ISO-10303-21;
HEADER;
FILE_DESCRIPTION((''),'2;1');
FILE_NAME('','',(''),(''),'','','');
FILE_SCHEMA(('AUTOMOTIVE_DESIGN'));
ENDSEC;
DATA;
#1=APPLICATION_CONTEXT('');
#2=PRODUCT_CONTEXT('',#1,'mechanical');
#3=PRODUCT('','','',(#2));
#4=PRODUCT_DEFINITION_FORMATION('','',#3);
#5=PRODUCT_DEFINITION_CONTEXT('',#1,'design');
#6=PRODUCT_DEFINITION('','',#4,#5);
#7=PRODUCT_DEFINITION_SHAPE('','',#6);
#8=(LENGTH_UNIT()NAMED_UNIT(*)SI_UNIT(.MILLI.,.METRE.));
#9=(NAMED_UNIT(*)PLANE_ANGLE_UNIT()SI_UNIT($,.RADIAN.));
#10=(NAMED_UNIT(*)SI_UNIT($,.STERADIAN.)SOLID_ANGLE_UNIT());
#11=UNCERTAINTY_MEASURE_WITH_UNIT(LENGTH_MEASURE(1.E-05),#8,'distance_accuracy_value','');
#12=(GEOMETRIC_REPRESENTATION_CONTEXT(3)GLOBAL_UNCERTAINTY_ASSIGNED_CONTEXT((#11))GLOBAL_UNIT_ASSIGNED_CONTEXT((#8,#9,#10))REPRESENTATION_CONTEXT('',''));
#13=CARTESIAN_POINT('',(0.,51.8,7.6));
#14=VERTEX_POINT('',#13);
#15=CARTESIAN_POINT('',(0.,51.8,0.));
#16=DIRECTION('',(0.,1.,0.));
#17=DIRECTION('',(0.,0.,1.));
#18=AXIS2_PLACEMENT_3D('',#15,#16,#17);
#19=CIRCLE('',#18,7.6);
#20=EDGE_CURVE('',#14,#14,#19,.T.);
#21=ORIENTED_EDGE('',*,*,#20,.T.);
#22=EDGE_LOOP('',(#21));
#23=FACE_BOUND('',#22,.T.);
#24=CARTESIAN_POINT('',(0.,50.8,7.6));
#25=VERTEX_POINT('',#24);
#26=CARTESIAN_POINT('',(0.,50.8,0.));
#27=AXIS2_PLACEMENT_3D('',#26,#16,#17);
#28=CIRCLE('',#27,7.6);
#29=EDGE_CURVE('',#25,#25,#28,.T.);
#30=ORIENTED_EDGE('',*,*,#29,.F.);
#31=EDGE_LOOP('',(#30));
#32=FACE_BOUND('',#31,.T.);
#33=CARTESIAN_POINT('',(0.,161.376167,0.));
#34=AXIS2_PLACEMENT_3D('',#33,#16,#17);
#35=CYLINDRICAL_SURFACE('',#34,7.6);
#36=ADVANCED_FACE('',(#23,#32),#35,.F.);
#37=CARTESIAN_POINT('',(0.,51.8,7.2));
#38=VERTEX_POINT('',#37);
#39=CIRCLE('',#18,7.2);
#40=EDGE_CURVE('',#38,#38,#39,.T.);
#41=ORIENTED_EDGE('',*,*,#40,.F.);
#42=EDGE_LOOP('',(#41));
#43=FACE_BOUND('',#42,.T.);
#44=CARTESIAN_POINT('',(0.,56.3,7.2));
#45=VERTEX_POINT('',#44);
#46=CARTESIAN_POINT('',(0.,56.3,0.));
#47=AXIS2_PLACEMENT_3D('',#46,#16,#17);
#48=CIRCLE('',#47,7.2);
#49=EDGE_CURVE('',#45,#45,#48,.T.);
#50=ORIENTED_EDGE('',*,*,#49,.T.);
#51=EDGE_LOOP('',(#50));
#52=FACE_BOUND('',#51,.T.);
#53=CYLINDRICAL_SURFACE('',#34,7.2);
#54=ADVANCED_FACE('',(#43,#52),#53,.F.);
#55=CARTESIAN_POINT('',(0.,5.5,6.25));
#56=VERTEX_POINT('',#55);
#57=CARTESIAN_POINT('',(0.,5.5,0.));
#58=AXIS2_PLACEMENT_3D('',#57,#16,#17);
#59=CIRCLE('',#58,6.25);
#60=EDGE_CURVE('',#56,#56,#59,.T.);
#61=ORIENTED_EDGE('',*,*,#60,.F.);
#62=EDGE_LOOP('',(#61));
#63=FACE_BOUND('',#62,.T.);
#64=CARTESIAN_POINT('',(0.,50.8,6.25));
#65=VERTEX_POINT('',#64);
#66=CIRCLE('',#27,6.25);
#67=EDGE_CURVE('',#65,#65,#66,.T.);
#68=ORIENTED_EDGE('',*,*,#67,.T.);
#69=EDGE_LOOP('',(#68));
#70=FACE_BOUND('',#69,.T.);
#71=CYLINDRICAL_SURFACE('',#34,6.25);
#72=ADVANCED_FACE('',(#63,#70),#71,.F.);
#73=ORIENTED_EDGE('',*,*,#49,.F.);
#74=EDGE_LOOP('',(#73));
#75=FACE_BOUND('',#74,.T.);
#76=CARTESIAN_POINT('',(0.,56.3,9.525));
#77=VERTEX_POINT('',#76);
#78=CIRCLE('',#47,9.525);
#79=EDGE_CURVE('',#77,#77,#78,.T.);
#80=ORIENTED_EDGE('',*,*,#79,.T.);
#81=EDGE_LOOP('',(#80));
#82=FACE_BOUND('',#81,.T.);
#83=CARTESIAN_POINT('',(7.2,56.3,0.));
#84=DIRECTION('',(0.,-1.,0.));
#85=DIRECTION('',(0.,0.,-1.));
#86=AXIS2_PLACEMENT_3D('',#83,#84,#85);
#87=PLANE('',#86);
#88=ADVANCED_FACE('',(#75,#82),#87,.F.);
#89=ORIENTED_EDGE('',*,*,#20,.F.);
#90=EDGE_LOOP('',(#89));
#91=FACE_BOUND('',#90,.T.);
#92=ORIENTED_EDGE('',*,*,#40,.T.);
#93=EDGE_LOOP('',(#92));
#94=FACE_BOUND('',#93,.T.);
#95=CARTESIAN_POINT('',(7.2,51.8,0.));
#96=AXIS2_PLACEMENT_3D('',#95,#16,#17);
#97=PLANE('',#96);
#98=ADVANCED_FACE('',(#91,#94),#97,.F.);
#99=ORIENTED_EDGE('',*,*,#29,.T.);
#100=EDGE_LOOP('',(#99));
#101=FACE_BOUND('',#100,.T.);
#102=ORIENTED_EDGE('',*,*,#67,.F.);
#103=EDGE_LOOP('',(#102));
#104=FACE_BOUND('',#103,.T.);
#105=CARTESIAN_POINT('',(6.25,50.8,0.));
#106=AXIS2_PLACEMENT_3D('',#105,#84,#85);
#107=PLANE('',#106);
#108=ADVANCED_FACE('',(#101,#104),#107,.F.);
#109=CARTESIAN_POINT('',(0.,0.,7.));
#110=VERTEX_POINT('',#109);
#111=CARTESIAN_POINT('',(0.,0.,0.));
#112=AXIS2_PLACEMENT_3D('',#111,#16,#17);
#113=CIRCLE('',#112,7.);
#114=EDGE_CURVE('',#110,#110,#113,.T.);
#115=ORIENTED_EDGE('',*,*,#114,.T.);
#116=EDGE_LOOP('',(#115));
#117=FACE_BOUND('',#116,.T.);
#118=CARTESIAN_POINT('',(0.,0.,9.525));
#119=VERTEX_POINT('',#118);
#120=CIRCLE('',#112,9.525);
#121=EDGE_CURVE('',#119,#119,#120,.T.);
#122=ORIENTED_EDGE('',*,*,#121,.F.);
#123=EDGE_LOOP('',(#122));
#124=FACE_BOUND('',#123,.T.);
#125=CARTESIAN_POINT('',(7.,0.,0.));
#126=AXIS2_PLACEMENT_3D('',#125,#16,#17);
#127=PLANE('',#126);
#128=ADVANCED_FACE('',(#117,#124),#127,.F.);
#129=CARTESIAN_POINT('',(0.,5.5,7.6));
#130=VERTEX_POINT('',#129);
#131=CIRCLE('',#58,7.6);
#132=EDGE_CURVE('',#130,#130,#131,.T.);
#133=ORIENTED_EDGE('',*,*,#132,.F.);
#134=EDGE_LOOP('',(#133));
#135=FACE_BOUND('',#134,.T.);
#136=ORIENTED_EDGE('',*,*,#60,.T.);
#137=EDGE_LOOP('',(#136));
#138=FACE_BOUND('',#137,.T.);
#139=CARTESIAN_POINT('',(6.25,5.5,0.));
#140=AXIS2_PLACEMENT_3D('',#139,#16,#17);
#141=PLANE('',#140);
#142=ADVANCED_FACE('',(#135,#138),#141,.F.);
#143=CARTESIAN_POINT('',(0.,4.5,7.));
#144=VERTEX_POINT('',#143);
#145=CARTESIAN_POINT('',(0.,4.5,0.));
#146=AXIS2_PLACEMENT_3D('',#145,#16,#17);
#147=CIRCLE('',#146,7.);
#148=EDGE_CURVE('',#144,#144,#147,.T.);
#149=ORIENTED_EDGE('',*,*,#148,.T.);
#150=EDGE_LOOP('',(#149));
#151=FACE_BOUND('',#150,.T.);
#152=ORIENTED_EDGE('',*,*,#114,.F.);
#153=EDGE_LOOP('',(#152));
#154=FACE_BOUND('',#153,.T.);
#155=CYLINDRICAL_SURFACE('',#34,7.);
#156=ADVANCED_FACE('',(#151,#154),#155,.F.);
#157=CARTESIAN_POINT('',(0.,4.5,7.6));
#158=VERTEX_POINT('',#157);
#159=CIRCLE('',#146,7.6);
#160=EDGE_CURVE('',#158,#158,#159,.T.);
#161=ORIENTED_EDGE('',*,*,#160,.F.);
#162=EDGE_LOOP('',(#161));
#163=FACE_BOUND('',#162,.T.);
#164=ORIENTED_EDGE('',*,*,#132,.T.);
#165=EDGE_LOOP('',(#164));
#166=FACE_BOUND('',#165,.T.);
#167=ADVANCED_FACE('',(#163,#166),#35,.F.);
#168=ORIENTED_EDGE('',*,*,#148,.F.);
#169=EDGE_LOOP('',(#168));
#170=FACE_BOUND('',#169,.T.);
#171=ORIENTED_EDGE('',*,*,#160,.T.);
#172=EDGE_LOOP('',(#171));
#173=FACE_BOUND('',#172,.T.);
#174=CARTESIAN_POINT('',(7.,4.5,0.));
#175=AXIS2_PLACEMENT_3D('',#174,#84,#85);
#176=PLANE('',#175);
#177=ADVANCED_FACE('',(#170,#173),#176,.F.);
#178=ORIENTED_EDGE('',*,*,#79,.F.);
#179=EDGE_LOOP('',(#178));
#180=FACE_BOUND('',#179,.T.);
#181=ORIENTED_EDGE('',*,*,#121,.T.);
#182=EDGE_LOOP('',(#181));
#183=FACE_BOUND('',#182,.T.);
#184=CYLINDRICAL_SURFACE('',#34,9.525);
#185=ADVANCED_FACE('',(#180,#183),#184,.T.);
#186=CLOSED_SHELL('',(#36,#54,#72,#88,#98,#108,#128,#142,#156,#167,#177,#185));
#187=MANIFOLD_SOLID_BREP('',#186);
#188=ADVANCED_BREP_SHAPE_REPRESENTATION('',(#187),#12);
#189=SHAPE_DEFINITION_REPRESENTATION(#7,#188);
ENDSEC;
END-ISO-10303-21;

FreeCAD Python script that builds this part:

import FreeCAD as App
import Part
import Sketcher


def add_polygon(sketch, points):
    """Adds a closed chain of lines whose ends are joined by coincident constraints."""
    first, n = sketch.GeometryCount, len(points)
    for a, b in zip(points, points[1:] + points[:1]):
        sketch.addGeometry(Part.LineSegment(App.Vector(*a, 0), App.Vector(*b, 0)), False)
    for i in range(n):
        sketch.addConstraint(Sketcher.Constraint("Coincident", first + i, 2, first + (i + 1) % n, 1))

doc = App.newDocument("Part")
body = doc.addObject("PartDesign::Body", "Body")

sketch1 = body.newObject("Sketcher::SketchObject", "Sketch")
sketch1.AttachmentSupport = (doc.getObject("XY_Plane"), [""])
sketch1.MapMode = "FlatFace"
add_polygon(sketch1, [(7, 4.5), (7, 0), (9.53, 0), (9.53, 56.3), (7.2, 56.3), (7.2, 51.8), (7.6, 51.8), (7.6, 50.8), (6.25, 50.8), (6.25, 5.5), (7.6, 5.5), (7.6, 4.5)])
sketch1.addConstraint(Sketcher.Constraint("Vertical", 0))
sketch1.addConstraint(Sketcher.Constraint("Horizontal", 1))
sketch1.addConstraint(Sketcher.Constraint("Vertical", 2))
sketch1.addConstraint(Sketcher.Constraint("Horizontal", 3))
sketch1.addConstraint(Sketcher.Constraint("Vertical", 4))
sketch1.addConstraint(Sketcher.Constraint("Horizontal", 5))
sketch1.addConstraint(Sketcher.Constraint("Vertical", 6))
sketch1.addConstraint(Sketcher.Constraint("Horizontal", 7))
sketch1.addConstraint(Sketcher.Constraint("Vertical", 8))
sketch1.addConstraint(Sketcher.Constraint("Horizontal", 9))
sketch1.addConstraint(Sketcher.Constraint("Vertical", 10))
sketch1.addConstraint(Sketcher.Constraint("Horizontal", 11))
sketch1.addConstraint(Sketcher.Constraint("PointOnObject", 0, 2, -1))
sketch1.addConstraint(Sketcher.Constraint("Vertical", 6, 2, 9, 2))
sketch1.addConstraint(Sketcher.Constraint("Equal", 0, 4))
sketch1.addConstraint(Sketcher.Constraint("Equal", 6, 10))
sketch1.addConstraint(Sketcher.Constraint("DistanceY", 6, 2, 6, 1, 1.0))
sketch1.addConstraint(Sketcher.Constraint("DistanceX", 5, 1, 5, 2, 0.4))
sketch1.addConstraint(Sketcher.Constraint("DistanceX", 11, 2, 11, 1, 0.6))
sketch1.addConstraint(Sketcher.Constraint("DistanceY", 0, 2, 0, 1, 4.5))
sketch1.addConstraint(Sketcher.Constraint("DistanceY", 2, 1, 2, 2, 56.3))
sketch1.addConstraint(Sketcher.Constraint("DistanceX", -1, 1, 0, 2, 7.0))
sketch1.addConstraint(Sketcher.Constraint("DistanceX", 7, 2, 7, 1, 1.35))
sketch1.addConstraint(Sketcher.Constraint("DistanceX", 1, 1, 1, 2, 2.525))
revolution = body.newObject("PartDesign::Revolution", "Revolution")
revolution.Profile = sketch1
revolution.ReferenceAxis = (sketch1, ["V_Axis"])
revolution.Angle = 360

doc.recompute()
